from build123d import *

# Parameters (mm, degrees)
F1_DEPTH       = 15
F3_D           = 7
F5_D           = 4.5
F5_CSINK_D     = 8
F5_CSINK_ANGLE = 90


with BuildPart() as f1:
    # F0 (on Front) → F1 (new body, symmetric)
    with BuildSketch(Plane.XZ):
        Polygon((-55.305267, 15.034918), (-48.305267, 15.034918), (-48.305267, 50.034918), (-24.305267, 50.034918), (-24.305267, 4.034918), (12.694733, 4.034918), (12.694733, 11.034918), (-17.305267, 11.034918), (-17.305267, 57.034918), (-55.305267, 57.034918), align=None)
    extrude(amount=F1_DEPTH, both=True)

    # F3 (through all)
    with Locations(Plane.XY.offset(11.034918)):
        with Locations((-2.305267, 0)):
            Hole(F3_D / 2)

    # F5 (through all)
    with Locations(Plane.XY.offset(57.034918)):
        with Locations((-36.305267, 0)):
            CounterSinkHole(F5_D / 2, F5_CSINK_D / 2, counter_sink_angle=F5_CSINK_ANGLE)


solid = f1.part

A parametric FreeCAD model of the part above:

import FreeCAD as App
import Part
import Sketcher
Q = App.Units.Quantity

doc = App.newDocument("Part")
body = doc.addObject("PartDesign::Body", "Body")

# Sketch on XZ plane
sketch1 = body.newObject("Sketcher::SketchObject", "Sketch")
sketch1.AttachmentSupport = (doc.getObject("XZ_Plane"), [""])
sketch1.MapMode = "FlatFace"
sketch1.addGeometry([
    Part.LineSegment(App.Vector(-55, 15, 0), App.Vector(-48, 15, 0)),  # 0
    Part.LineSegment(App.Vector(-48, 15, 0), App.Vector(-48, 50, 0)),  # 1
    Part.LineSegment(App.Vector(-48, 50, 0), App.Vector(-24, 50, 0)),  # 2
    Part.LineSegment(App.Vector(-24, 50, 0), App.Vector(-24, 4, 0)),  # 3
    Part.LineSegment(App.Vector(-24, 4, 0), App.Vector(13, 4, 0)),  # 4
    Part.LineSegment(App.Vector(13, 4, 0), App.Vector(13, 11, 0)),  # 5
    Part.LineSegment(App.Vector(13, 11, 0), App.Vector(-17, 11, 0)),  # 6
    Part.LineSegment(App.Vector(-17, 11, 0), App.Vector(-17, 57, 0)),  # 7
    Part.LineSegment(App.Vector(-17, 57, 0), App.Vector(-55, 57, 0)),  # 8
    Part.LineSegment(App.Vector(-55, 57, 0), App.Vector(-55, 15, 0)),  # 9
], False)
sketch1.addConstraint([
    Sketcher.Constraint("Coincident", 0, 2, 1, 1),
    Sketcher.Constraint("Coincident", 1, 2, 2, 1),
    Sketcher.Constraint("Coincident", 2, 2, 3, 1),
    Sketcher.Constraint("Coincident", 3, 2, 4, 1),
    Sketcher.Constraint("Coincident", 4, 2, 5, 1),
    Sketcher.Constraint("Coincident", 5, 2, 6, 1),
    Sketcher.Constraint("Coincident", 6, 2, 7, 1),
    Sketcher.Constraint("Coincident", 7, 2, 8, 1),
    Sketcher.Constraint("Coincident", 8, 2, 9, 1),
    Sketcher.Constraint("Coincident", 9, 2, 0, 1),
    Sketcher.Constraint("Horizontal", 0),
    Sketcher.Constraint("Vertical", 1),
    Sketcher.Constraint("Horizontal", 2),
    Sketcher.Constraint("Vertical", 3),
    Sketcher.Constraint("Horizontal", 4),
    Sketcher.Constraint("Vertical", 5),
    Sketcher.Constraint("Horizontal", 6),
    Sketcher.Constraint("Vertical", 7),
    Sketcher.Constraint("Horizontal", 8),
    Sketcher.Constraint("Vertical", 9),
    Sketcher.Constraint("Equal", 0, 5),
    Sketcher.Constraint("Equal", 3, 7),
    Sketcher.Constraint("DistanceX", 0, 1, 0, 2, Q("7 mm")),
    Sketcher.Constraint("DistanceX", 2, 1, 2, 2, Q("24 mm")),
    Sketcher.Constraint("DistanceX", 4, 1, 4, 2, Q("37 mm")),
    Sketcher.Constraint("DistanceX", 6, 2, 6, 1, Q("30 mm")),
    Sketcher.Constraint("DistanceY", 1, 1, 1, 2, Q("35 mm")),
    Sketcher.Constraint("DistanceY", 3, 2, 3, 1, Q("46 mm")),
    Sketcher.Constraint("DistanceY", -1, 1, 3, 2, Q("4.034918 mm")),
    Sketcher.Constraint("DistanceX", 0, 2, -1, 1, Q("48.305267 mm")),
])
pad1 = body.newObject("PartDesign::Pad", "Pad")
pad1.Profile = sketch1
pad1.Length = 30
pad1.Midplane = True

# Sketch on XY plane
sketch2 = body.newObject("Sketcher::SketchObject", "Sketch001")
sketch2.AttachmentSupport = (doc.getObject("XY_Plane"), [""])
sketch2.MapMode = "FlatFace"
sketch2.AttachmentOffset = App.Placement(App.Vector(0, 0, 11.034918), App.Rotation())
sketch2.addGeometry(Part.Circle(App.Vector(-2.3, 0, 0), App.Vector(0, 0, 1), 3.5), False)
sketch2.addConstraint([
    Sketcher.Constraint("PointOnObject", 0, 3, -1),
    Sketcher.Constraint("Diameter", 0, Q("7 mm")),
    Sketcher.Constraint("DistanceX", 0, 3, -1, 1, Q("2.305267 mm")),
])
doc.recompute()
hole = body.newObject("PartDesign::Hole", "Hole")
hole.Profile = sketch2
hole.ThreadType = "None"
hole.Diameter = 7
hole.DepthType = "ThroughAll"

# Sketch on XY plane
sketch3 = body.newObject("Sketcher::SketchObject", "Sketch002")
sketch3.AttachmentSupport = (doc.getObject("XY_Plane"), [""])
sketch3.MapMode = "FlatFace"
sketch3.AttachmentOffset = App.Placement(App.Vector(0, 0, 57.034918), App.Rotation())
sketch3.addGeometry(Part.Circle(App.Vector(-36.3, 0, 0), App.Vector(0, 0, 1), 2.2), False)
sketch3.addConstraint([
    Sketcher.Constraint("PointOnObject", 0, 3, -1),
    Sketcher.Constraint("Diameter", 0, Q("4.5 mm")),
    Sketcher.Constraint("DistanceX", 0, 3, -1, 1, Q("36.305267 mm")),
])
doc.recompute()
hole2 = body.newObject("PartDesign::Hole", "Hole001")
hole2.Profile = sketch3
hole2.ThreadType = "None"
hole2.Diameter = 4.5
hole2.DepthType = "ThroughAll"
hole2.HoleCutType = "Countersink"
hole2.HoleCutDiameter = 8
hole2.HoleCutCountersinkAngle = 90

doc.recompute()
